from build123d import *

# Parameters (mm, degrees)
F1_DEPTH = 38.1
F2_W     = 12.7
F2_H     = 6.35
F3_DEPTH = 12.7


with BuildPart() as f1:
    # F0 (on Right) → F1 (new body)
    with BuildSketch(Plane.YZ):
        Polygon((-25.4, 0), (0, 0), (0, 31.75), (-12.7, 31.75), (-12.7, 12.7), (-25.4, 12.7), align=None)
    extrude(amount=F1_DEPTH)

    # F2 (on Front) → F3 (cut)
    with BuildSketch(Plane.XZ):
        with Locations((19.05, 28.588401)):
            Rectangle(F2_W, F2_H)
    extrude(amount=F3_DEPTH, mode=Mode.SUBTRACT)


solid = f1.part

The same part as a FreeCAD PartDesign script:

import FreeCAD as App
import Part
import Sketcher
Q = App.Units.Quantity


def add_polygon(sketch, points):
    """Adds a closed chain of lines whose ends are joined by coincident constraints."""
    first, n = sketch.GeometryCount, len(points)
    for a, b in zip(points, points[1:] + points[:1]):
        sketch.addGeometry(Part.LineSegment(App.Vector(*a, 0), App.Vector(*b, 0)), False)
    for i in range(n):
        sketch.addConstraint(Sketcher.Constraint("Coincident", first + i, 2, first + (i + 1) % n, 1))

doc = App.newDocument("Part")
params = doc.addObject("Spreadsheet::Sheet", "Params")
for row, (alias, value) in enumerate([
    ("sketch1_width", "1 in"),
    ("sketch1_height", "1.25 in"),
    ("pad1_length", "1.5 in"),
    ("sketch2_width", "0.5 in"),
    ("sketch2_height", "0.25 in"),
    ("pocket1_length", "0.5 in"),
], start=1):
    params.set(f"A{row}", alias)
    params.set(f"B{row}", "=" + value)
    params.setAlias(f"B{row}", alias)

body = doc.addObject("PartDesign::Body", "Body")

# Sketch on YZ plane
sketch1 = body.newObject("Sketcher::SketchObject", "Sketch")
sketch1.AttachmentSupport = (doc.getObject("YZ_Plane"), [""])
sketch1.MapMode = "FlatFace"
add_polygon(sketch1, [(-25.4, 0), (0, 0), (0, 31.75), (-12.7, 31.75), (-12.7, 12.7), (-25.4, 12.7)])  # lines 0-5
sketch1.addConstraint([
    Sketcher.Constraint("Horizontal", 0),
    Sketcher.Constraint("Vertical", 1),
    Sketcher.Constraint("Horizontal", 2),
    Sketcher.Constraint("Vertical", 3),
    Sketcher.Constraint("Horizontal", 4),
    Sketcher.Constraint("Vertical", 5),
    Sketcher.Constraint("Coincident", 0, 2, -1, 1),
    Sketcher.Constraint("Equal", 2, 4),
    Sketcher.Constraint("Equal", 4, 5),
    Sketcher.Constraint("DistanceX", 0, 1, 0, 2, Q("1 in")),
    Sketcher.Constraint("DistanceY", 1, 1, 1, 2, Q("1.25 in")),
])
sketch1.setExpression("Constraints[15]", "Params.sketch1_width")
sketch1.setExpression("Constraints[16]", "Params.sketch1_height")
pad1 = body.newObject("PartDesign::Pad", "Pad")
pad1.Profile = sketch1
pad1.setExpression("Length", "Params.pad1_length")

# Sketch on XZ plane
sketch2 = body.newObject("Sketcher::SketchObject", "Sketch001")
sketch2.AttachmentSupport = (doc.getObject("XZ_Plane"), [""])
sketch2.MapMode = "FlatFace"
add_polygon(sketch2, [(12.7, 31.763401), (12.7, 25.413401), (25.4, 25.413401), (25.4, 31.763401)])  # lines 0-3
sketch2.addConstraint([
    Sketcher.Constraint("Vertical", 0),
    Sketcher.Constraint("Horizontal", 1),
    Sketcher.Constraint("Vertical", 2),
    Sketcher.Constraint("Horizontal", 3),
    Sketcher.Constraint("DistanceX", 1, 1, 1, 2, Q("0.5 in")),
    Sketcher.Constraint("DistanceX", -1, 1, 1, 2, Q("1 in")),
    Sketcher.Constraint("DistanceY", 0, 2, 0, 1, Q("0.25 in")),
    Sketcher.Constraint("DistanceY", -1, 1, 0, 2, Q("25.413401 mm")),
])
sketch2.setExpression("Constraints[8]", "Params.sketch2_width")
sketch2.setExpression("Constraints[10]", "Params.sketch2_height")
pocket1 = body.newObject("PartDesign::Pocket", "Pocket")
pocket1.Profile = sketch2
pocket1.setExpression("Length", "Params.pocket1_length")
pocket1.Reversed = True

doc.recompute()
